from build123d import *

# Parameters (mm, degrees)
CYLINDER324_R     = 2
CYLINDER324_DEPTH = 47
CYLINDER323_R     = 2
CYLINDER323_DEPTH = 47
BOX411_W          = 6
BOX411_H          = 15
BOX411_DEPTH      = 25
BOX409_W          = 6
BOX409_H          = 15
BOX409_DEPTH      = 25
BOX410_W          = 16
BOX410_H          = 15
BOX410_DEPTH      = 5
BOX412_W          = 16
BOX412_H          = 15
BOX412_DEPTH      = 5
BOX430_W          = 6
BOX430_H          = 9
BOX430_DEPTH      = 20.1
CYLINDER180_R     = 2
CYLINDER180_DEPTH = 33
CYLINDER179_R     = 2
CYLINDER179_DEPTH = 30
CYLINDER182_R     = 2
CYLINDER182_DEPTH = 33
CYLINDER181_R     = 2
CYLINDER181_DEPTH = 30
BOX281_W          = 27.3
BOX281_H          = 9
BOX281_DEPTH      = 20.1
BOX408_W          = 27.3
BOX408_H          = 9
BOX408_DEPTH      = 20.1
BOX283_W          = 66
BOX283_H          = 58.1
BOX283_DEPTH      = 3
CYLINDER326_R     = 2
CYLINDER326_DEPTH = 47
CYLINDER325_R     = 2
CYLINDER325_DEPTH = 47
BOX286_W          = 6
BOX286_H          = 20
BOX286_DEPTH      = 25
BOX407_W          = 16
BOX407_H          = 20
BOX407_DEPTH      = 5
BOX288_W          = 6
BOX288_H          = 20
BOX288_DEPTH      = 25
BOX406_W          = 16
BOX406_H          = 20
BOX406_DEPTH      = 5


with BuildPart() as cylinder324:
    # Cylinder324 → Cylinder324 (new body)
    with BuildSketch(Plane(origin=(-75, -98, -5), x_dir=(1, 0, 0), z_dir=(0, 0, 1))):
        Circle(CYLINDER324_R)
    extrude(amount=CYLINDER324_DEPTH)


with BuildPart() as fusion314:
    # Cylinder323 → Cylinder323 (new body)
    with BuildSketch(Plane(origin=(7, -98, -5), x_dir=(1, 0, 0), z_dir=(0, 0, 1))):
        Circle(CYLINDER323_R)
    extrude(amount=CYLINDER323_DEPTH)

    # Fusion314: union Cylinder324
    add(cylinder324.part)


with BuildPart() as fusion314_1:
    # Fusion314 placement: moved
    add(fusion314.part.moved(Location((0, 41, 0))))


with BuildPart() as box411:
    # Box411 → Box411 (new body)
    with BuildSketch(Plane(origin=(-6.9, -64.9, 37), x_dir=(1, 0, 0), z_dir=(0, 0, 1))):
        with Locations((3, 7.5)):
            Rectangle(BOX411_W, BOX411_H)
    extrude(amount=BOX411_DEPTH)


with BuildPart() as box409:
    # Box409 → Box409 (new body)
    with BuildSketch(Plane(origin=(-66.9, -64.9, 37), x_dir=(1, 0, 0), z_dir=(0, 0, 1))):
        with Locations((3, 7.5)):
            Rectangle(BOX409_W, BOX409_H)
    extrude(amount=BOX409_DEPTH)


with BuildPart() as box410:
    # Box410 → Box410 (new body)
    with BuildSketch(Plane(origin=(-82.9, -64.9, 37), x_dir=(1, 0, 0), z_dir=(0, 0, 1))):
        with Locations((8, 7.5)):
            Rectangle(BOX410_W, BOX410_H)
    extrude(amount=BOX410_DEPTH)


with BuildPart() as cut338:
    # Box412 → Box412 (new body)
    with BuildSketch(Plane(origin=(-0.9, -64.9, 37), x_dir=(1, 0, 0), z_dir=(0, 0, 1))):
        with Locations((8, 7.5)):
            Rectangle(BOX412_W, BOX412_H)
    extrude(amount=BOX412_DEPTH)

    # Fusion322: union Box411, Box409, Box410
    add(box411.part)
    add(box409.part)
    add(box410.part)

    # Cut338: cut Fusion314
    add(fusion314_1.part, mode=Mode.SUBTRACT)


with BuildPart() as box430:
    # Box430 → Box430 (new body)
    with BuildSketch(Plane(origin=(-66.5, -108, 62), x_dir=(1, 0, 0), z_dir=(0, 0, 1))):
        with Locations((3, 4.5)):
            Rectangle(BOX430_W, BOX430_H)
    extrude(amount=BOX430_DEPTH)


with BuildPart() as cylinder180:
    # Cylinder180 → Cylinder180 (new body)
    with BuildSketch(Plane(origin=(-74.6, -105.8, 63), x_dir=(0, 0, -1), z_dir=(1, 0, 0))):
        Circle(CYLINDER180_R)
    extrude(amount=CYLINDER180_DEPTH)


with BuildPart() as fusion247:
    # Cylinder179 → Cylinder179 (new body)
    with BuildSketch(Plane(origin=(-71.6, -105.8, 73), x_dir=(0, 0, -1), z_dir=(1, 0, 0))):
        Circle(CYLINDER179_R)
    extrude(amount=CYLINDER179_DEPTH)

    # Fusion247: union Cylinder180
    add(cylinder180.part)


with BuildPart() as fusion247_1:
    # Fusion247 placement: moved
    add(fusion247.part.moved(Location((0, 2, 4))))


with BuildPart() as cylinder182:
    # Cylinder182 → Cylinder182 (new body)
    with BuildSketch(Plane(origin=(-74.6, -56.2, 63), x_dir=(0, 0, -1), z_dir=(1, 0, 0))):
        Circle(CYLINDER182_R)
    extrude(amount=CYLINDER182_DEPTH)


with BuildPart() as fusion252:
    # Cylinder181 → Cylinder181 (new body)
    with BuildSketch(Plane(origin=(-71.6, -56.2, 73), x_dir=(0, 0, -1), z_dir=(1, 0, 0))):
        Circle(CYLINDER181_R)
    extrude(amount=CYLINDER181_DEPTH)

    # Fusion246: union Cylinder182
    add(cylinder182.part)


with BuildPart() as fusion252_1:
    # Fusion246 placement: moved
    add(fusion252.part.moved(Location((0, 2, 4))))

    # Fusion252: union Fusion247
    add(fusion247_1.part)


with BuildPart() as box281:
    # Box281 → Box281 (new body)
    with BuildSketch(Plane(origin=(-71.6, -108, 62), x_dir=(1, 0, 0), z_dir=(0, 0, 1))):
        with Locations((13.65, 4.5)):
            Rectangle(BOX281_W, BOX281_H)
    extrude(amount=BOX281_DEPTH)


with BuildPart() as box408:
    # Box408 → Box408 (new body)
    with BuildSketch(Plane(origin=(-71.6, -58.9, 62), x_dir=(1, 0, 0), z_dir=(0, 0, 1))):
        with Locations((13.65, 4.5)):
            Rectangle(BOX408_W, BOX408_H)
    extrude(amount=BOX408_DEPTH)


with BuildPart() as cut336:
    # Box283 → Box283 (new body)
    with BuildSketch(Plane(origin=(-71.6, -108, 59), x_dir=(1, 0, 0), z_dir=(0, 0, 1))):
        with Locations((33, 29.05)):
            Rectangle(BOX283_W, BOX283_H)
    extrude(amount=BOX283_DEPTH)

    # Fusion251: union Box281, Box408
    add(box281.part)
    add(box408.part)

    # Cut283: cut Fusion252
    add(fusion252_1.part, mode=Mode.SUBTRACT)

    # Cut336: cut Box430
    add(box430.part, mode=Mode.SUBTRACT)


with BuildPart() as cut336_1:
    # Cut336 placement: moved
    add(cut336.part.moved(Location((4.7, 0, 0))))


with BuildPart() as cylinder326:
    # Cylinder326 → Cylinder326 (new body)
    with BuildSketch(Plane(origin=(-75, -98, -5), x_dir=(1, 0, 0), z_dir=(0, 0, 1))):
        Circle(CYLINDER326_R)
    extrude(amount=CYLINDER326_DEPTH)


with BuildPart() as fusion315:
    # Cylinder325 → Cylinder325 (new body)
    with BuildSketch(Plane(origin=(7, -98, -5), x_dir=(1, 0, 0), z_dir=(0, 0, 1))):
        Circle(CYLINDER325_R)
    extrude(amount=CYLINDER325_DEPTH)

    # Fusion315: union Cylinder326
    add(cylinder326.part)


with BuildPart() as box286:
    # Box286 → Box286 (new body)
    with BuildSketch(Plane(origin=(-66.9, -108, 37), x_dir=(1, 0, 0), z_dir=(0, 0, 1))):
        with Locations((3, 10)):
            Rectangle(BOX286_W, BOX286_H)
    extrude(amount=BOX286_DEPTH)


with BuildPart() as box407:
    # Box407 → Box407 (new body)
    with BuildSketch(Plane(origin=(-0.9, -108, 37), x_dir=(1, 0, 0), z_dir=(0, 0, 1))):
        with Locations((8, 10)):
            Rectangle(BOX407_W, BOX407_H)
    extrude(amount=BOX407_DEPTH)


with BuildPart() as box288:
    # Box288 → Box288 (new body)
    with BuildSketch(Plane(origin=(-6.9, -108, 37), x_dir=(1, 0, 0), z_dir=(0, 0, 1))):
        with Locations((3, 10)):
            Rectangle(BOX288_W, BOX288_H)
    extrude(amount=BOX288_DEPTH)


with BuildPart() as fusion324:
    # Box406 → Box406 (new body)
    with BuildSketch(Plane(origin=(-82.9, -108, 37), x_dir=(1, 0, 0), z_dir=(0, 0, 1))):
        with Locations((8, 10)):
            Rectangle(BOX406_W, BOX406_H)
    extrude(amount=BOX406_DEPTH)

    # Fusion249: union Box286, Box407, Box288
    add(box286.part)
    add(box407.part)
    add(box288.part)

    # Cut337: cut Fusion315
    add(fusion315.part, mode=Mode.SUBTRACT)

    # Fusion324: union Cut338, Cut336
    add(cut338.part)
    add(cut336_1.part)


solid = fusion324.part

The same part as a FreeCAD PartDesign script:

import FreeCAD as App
import Part
import Sketcher

V = App.Vector

doc = App.newDocument("Part")
body = doc.addObject("PartDesign::Body", "Body")

# Sketch on XY plane
sketch1 = body.newObject("Sketcher::SketchObject", "Sketch")
sketch1.AttachmentSupport = (doc.getObject("XY_Plane"), [""])
sketch1.MapMode = "FlatFace"
sketch1.AttachmentOffset = App.Placement(V(0, 0, -5), App.Rotation())
sketch1.addGeometry(Part.Circle(V(-75, -98, 0), V(0, 0, 1), 2), False)
sketch1.addConstraint([
    Sketcher.Constraint("Diameter", 0, 4.0),
    Sketcher.Constraint("DistanceX", 0, 3, -1, 1, 75.0),
    Sketcher.Constraint("DistanceY", 0, 3, -1, 1, 98.0),
])
pad1 = body.newObject("PartDesign::Pad", "Pad")
pad1.Profile = sketch1
pad1.Length = 47
body2 = doc.addObject("PartDesign::Body", "Body001")
body2.AllowCompound = True

# Sketch on XY plane
sketch2 = body2.newObject("Sketcher::SketchObject", "Sketch001")
sketch2.AttachmentSupport = (doc.getObject("XY_Plane001"), [""])
sketch2.MapMode = "FlatFace"
sketch2.AttachmentOffset = App.Placement(V(0, 0, -5), App.Rotation())
sketch2.addGeometry(Part.Circle(V(7, -98, 0), V(0, 0, 1), 2), False)
sketch2.addConstraint([
    Sketcher.Constraint("Diameter", 0, 4.0),
    Sketcher.Constraint("DistanceX", -1, 1, 0, 3, 7.0),
    Sketcher.Constraint("DistanceY", 0, 3, -1, 1, 98.0),
])
pad2 = body2.newObject("PartDesign::Pad", "Pad001")
pad2.Profile = sketch2
pad2.Length = 47
doc.recompute()

boolean = body2.newObject("PartDesign::Boolean", "Boolean")
boolean.Type = "Fuse"
boolean.addObjects([body])
body3 = doc.addObject("PartDesign::Body", "Body002")
body3.AllowCompound = True
doc.recompute()

body2.Placement = App.Placement(V(0, 41, 0), App.Rotation(V(0, 0, 1), 0))
boolean2 = body3.newObject("PartDesign::Boolean", "Boolean001")
boolean2.Type = "Fuse"
boolean2.addObjects([body2])
body4 = doc.addObject("PartDesign::Body", "Body003")

# Sketch on XY plane
sketch3 = body4.newObject("Sketcher::SketchObject", "Sketch002")
sketch3.AttachmentSupport = (doc.getObject("XY_Plane003"), [""])
sketch3.MapMode = "FlatFace"
sketch3.AttachmentOffset = App.Placement(V(0, 0, 37), App.Rotation())
sketch3.addGeometry([
    Part.LineSegment(V(-7, -50, 0), V(-7, -65, 0)),
    Part.LineSegment(V(-7, -65, 0), V(-1, -65, 0)),
    Part.LineSegment(V(-1, -65, 0), V(-1, -50, 0)),
    Part.LineSegment(V(-1, -50, 0), V(-7, -50, 0)),
], False)
sketch3.addConstraint([
    Sketcher.Constraint("Coincident", 0, 2, 1, 1),
    Sketcher.Constraint("Coincident", 1, 2, 2, 1),
    Sketcher.Constraint("Coincident", 2, 2, 3, 1),
    Sketcher.Constraint("Coincident", 3, 2, 0, 1),
    Sketcher.Constraint("Vertical", 0),
    Sketcher.Constraint("Horizontal", 1),
    Sketcher.Constraint("Vertical", 2),
    Sketcher.Constraint("Horizontal", 3),
    Sketcher.Constraint("DistanceX", 1, 1, 1, 2, 6.0),
    Sketcher.Constraint("DistanceY", 0, 2, 0, 1, 15.0),
    Sketcher.Constraint("DistanceX", 0, 2, -1, 1, 6.9),
    Sketcher.Constraint("DistanceY", 0, 2, -1, 1, 64.9),
])
pad3 = body4.newObject("PartDesign::Pad", "Pad002")
pad3.Profile = sketch3
pad3.Length = 25
body5 = doc.addObject("PartDesign::Body", "Body004")

# Sketch on XY plane
sketch4 = body5.newObject("Sketcher::SketchObject", "Sketch003")
sketch4.AttachmentSupport = (doc.getObject("XY_Plane004"), [""])
sketch4.MapMode = "FlatFace"
sketch4.AttachmentOffset = App.Placement(V(0, 0, 37), App.Rotation())
sketch4.addGeometry([
    Part.LineSegment(V(-67, -50, 0), V(-67, -65, 0)),
    Part.LineSegment(V(-67, -65, 0), V(-61, -65, 0)),
    Part.LineSegment(V(-61, -65, 0), V(-61, -50, 0)),
    Part.LineSegment(V(-61, -50, 0), V(-67, -50, 0)),
], False)
sketch4.addConstraint([
    Sketcher.Constraint("Coincident", 0, 2, 1, 1),
    Sketcher.Constraint("Coincident", 1, 2, 2, 1),
    Sketcher.Constraint("Coincident", 2, 2, 3, 1),
    Sketcher.Constraint("Coincident", 3, 2, 0, 1),
    Sketcher.Constraint("Vertical", 0),
    Sketcher.Constraint("Horizontal", 1),
    Sketcher.Constraint("Vertical", 2),
    Sketcher.Constraint("Horizontal", 3),
    Sketcher.Constraint("DistanceX", 1, 1, 1, 2, 6.0),
    Sketcher.Constraint("DistanceY", 0, 2, 0, 1, 15.0),
    Sketcher.Constraint("DistanceX", 0, 2, -1, 1, 66.9),
    Sketcher.Constraint("DistanceY", 0, 2, -1, 1, 64.9),
])
pad4 = body5.newObject("PartDesign::Pad", "Pad003")
pad4.Profile = sketch4
pad4.Length = 25
body6 = doc.addObject("PartDesign::Body", "Body005")

# Sketch on XY plane
sketch5 = body6.newObject("Sketcher::SketchObject", "Sketch004")
sketch5.AttachmentSupport = (doc.getObject("XY_Plane005"), [""])
sketch5.MapMode = "FlatFace"
sketch5.AttachmentOffset = App.Placement(V(0, 0, 37), App.Rotation())
sketch5.addGeometry([
    Part.LineSegment(V(-83, -50, 0), V(-83, -65, 0)),
    Part.LineSegment(V(-83, -65, 0), V(-67, -65, 0)),
    Part.LineSegment(V(-67, -65, 0), V(-67, -50, 0)),
    Part.LineSegment(V(-67, -50, 0), V(-83, -50, 0)),
], False)
sketch5.addConstraint([
    Sketcher.Constraint("Coincident", 0, 2, 1, 1),
    Sketcher.Constraint("Coincident", 1, 2, 2, 1),
    Sketcher.Constraint("Coincident", 2, 2, 3, 1),
    Sketcher.Constraint("Coincident", 3, 2, 0, 1),
    Sketcher.Constraint("Vertical", 0),
    Sketcher.Constraint("Horizontal", 1),
    Sketcher.Constraint("Vertical", 2),
    Sketcher.Constraint("Horizontal", 3),
    Sketcher.Constraint("DistanceX", 1, 1, 1, 2, 16.0),
    Sketcher.Constraint("DistanceY", 0, 2, 0, 1, 15.0),
    Sketcher.Constraint("DistanceX", 0, 2, -1, 1, 82.9),
    Sketcher.Constraint("DistanceY", 0, 2, -1, 1, 64.9),
])
pad5 = body6.newObject("PartDesign::Pad", "Pad004")
pad5.Profile = sketch5
pad5.Length = 5
body7 = doc.addObject("PartDesign::Body", "Body006")
body7.AllowCompound = True

# Sketch on XY plane
sketch6 = body7.newObject("Sketcher::SketchObject", "Sketch005")
sketch6.AttachmentSupport = (doc.getObject("XY_Plane006"), [""])
sketch6.MapMode = "FlatFace"
sketch6.AttachmentOffset = App.Placement(V(0, 0, 37), App.Rotation())
sketch6.addGeometry([
    Part.LineSegment(V(-1, -50, 0), V(-1, -65, 0)),
    Part.LineSegment(V(-1, -65, 0), V(15, -65, 0)),
    Part.LineSegment(V(15, -65, 0), V(15, -50, 0)),
    Part.LineSegment(V(15, -50, 0), V(-1, -50, 0)),
], False)
sketch6.addConstraint([
    Sketcher.Constraint("Coincident", 0, 2, 1, 1),
    Sketcher.Constraint("Coincident", 1, 2, 2, 1),
    Sketcher.Constraint("Coincident", 2, 2, 3, 1),
    Sketcher.Constraint("Coincident", 3, 2, 0, 1),
    Sketcher.Constraint("Vertical", 0),
    Sketcher.Constraint("Horizontal", 1),
    Sketcher.Constraint("Vertical", 2),
    Sketcher.Constraint("Horizontal", 3),
    Sketcher.Constraint("DistanceX", 1, 1, 1, 2, 16.0),
    Sketcher.Constraint("DistanceY", 0, 2, 0, 1, 15.0),
    Sketcher.Constraint("DistanceX", 0, 2, -1, 1, 0.9),
    Sketcher.Constraint("DistanceY", 0, 2, -1, 1, 64.9),
])
pad6 = body7.newObject("PartDesign::Pad", "Pad005")
pad6.Profile = sketch6
pad6.Length = 5
doc.recompute()

boolean3 = body7.newObject("PartDesign::Boolean", "Boolean002")
boolean3.Type = "Fuse"
boolean3.addObjects([body4])
doc.recompute()

boolean4 = body7.newObject("PartDesign::Boolean", "Boolean003")
boolean4.Type = "Fuse"
boolean4.addObjects([body5])
doc.recompute()

boolean5 = body7.newObject("PartDesign::Boolean", "Boolean004")
boolean5.Type = "Fuse"
boolean5.addObjects([body6])
doc.recompute()

boolean6 = body7.newObject("PartDesign::Boolean", "Boolean005")
boolean6.Type = "Cut"
boolean6.addObjects([body3])
body8 = doc.addObject("PartDesign::Body", "Body007")

# Sketch on XY plane
sketch7 = body8.newObject("Sketcher::SketchObject", "Sketch006")
sketch7.AttachmentSupport = (doc.getObject("XY_Plane007"), [""])
sketch7.MapMode = "FlatFace"
sketch7.AttachmentOffset = App.Placement(V(0, 0, 62), App.Rotation())
sketch7.addGeometry([
    Part.LineSegment(V(-66, -99, 0), V(-66, -108, 0)),
    Part.LineSegment(V(-66, -108, 0), V(-60, -108, 0)),
    Part.LineSegment(V(-60, -108, 0), V(-60, -99, 0)),
    Part.LineSegment(V(-60, -99, 0), V(-66, -99, 0)),
], False)
sketch7.addConstraint([
    Sketcher.Constraint("Coincident", 0, 2, 1, 1),
    Sketcher.Constraint("Coincident", 1, 2, 2, 1),
    Sketcher.Constraint("Coincident", 2, 2, 3, 1),
    Sketcher.Constraint("Coincident", 3, 2, 0, 1),
    Sketcher.Constraint("Vertical", 0),
    Sketcher.Constraint("Horizontal", 1),
    Sketcher.Constraint("Vertical", 2),
    Sketcher.Constraint("Horizontal", 3),
    Sketcher.Constraint("DistanceX", 1, 1, 1, 2, 6.0),
    Sketcher.Constraint("DistanceY", 0, 2, 0, 1, 9.0),
    Sketcher.Constraint("DistanceY", 0, 2, -1, 1, 108.0),
    Sketcher.Constraint("DistanceX", 0, 2, -1, 1, 66.5),
])
pad7 = body8.newObject("PartDesign::Pad", "Pad006")
pad7.Profile = sketch7
pad7.Length = 20.1
body9 = doc.addObject("PartDesign::Body", "Body008")

# Sketch on YZ plane
sketch8 = body9.newObject("Sketcher::SketchObject", "Sketch007")
sketch8.AttachmentSupport = (doc.getObject("YZ_Plane008"), [""])
sketch8.MapMode = "FlatFace"
sketch8.AttachmentOffset = App.Placement(V(0, 0, -74.6), App.Rotation())
sketch8.addGeometry(Part.Circle(V(-105.8, 63, 0), V(0, 0, 1), 2), False)
sketch8.addConstraint([
    Sketcher.Constraint("Diameter", 0, 4.0),
    Sketcher.Constraint("DistanceY", -1, 1, 0, 3, 63.0),
    Sketcher.Constraint("DistanceX", 0, 3, -1, 1, 105.8),
])
pad8 = body9.newObject("PartDesign::Pad", "Pad007")
pad8.Profile = sketch8
pad8.Length = 33
body10 = doc.addObject("PartDesign::Body", "Body009")
body10.AllowCompound = True

# Sketch on YZ plane
sketch9 = body10.newObject("Sketcher::SketchObject", "Sketch008")
sketch9.AttachmentSupport = (doc.getObject("YZ_Plane009"), [""])
sketch9.MapMode = "FlatFace"
sketch9.AttachmentOffset = App.Placement(V(0, 0, -71.6), App.Rotation())
sketch9.addGeometry(Part.Circle(V(-105.8, 73, 0), V(0, 0, 1), 2), False)
sketch9.addConstraint([
    Sketcher.Constraint("Diameter", 0, 4.0),
    Sketcher.Constraint("DistanceY", -1, 1, 0, 3, 73.0),
    Sketcher.Constraint("DistanceX", 0, 3, -1, 1, 105.8),
])
pad9 = body10.newObject("PartDesign::Pad", "Pad008")
pad9.Profile = sketch9
pad9.Length = 30
doc.recompute()

boolean7 = body10.newObject("PartDesign::Boolean", "Boolean006")
boolean7.Type = "Fuse"
boolean7.addObjects([body9])
body11 = doc.addObject("PartDesign::Body", "Body010")
body11.AllowCompound = True
doc.recompute()

body10.Placement = App.Placement(V(0, 2, 4), App.Rotation(V(0, 0, 1), 0))
boolean8 = body11.newObject("PartDesign::Boolean", "Boolean007")
boolean8.Type = "Fuse"
boolean8.addObjects([body10])
body12 = doc.addObject("PartDesign::Body", "Body011")

# Sketch on YZ plane
sketch10 = body12.newObject("Sketcher::SketchObject", "Sketch009")
sketch10.AttachmentSupport = (doc.getObject("YZ_Plane011"), [""])
sketch10.MapMode = "FlatFace"
sketch10.AttachmentOffset = App.Placement(V(0, 0, -74.6), App.Rotation())
sketch10.addGeometry(Part.Circle(V(-56.2, 63, 0), V(0, 0, 1), 2), False)
sketch10.addConstraint([
    Sketcher.Constraint("Diameter", 0, 4.0),
    Sketcher.Constraint("DistanceY", -1, 1, 0, 3, 63.0),
    Sketcher.Constraint("DistanceX", 0, 3, -1, 1, 56.2),
])
pad10 = body12.newObject("PartDesign::Pad", "Pad009")
pad10.Profile = sketch10
pad10.Length = 33
body13 = doc.addObject("PartDesign::Body", "Body012")
body13.AllowCompound = True

# Sketch on YZ plane
sketch11 = body13.newObject("Sketcher::SketchObject", "Sketch010")
sketch11.AttachmentSupport = (doc.getObject("YZ_Plane012"), [""])
sketch11.MapMode = "FlatFace"
sketch11.AttachmentOffset = App.Placement(V(0, 0, -71.6), App.Rotation())
sketch11.addGeometry(Part.Circle(V(-56.2, 73, 0), V(0, 0, 1), 2), False)
sketch11.addConstraint([
    Sketcher.Constraint("Diameter", 0, 4.0),
    Sketcher.Constraint("DistanceY", -1, 1, 0, 3, 73.0),
    Sketcher.Constraint("DistanceX", 0, 3, -1, 1, 56.2),
])
pad11 = body13.newObject("PartDesign::Pad", "Pad010")
pad11.Profile = sketch11
pad11.Length = 30
doc.recompute()

boolean9 = body13.newObject("PartDesign::Boolean", "Boolean008")
boolean9.Type = "Fuse"
boolean9.addObjects([body12])
body14 = doc.addObject("PartDesign::Body", "Body013")
body14.AllowCompound = True
doc.recompute()

body13.Placement = App.Placement(V(0, 2, 4), App.Rotation(V(0, 0, 1), 0))
boolean10 = body14.newObject("PartDesign::Boolean", "Boolean009")
boolean10.Type = "Fuse"
boolean10.addObjects([body13])
doc.recompute()

boolean11 = body14.newObject("PartDesign::Boolean", "Boolean010")
boolean11.Type = "Fuse"
boolean11.addObjects([body11])
body15 = doc.addObject("PartDesign::Body", "Body014")

# Sketch on XY plane
sketch12 = body15.newObject("Sketcher::SketchObject", "Sketch011")
sketch12.AttachmentSupport = (doc.getObject("XY_Plane014"), [""])
sketch12.MapMode = "FlatFace"
sketch12.AttachmentOffset = App.Placement(V(0, 0, 62), App.Rotation())
sketch12.addGeometry([
    Part.LineSegment(V(-72, -99, 0), V(-72, -108, 0)),
    Part.LineSegment(V(-72, -108, 0), V(-44, -108, 0)),
    Part.LineSegment(V(-44, -108, 0), V(-44, -99, 0)),
    Part.LineSegment(V(-44, -99, 0), V(-72, -99, 0)),
], False)
sketch12.addConstraint([
    Sketcher.Constraint("Coincident", 0, 2, 1, 1),
    Sketcher.Constraint("Coincident", 1, 2, 2, 1),
    Sketcher.Constraint("Coincident", 2, 2, 3, 1),
    Sketcher.Constraint("Coincident", 3, 2, 0, 1),
    Sketcher.Constraint("Vertical", 0),
    Sketcher.Constraint("Horizontal", 1),
    Sketcher.Constraint("Vertical", 2),
    Sketcher.Constraint("Horizontal", 3),
    Sketcher.Constraint("DistanceY", 0, 2, 0, 1, 9.0),
    Sketcher.Constraint("DistanceX", 1, 1, 1, 2, 27.3),
    Sketcher.Constraint("DistanceY", 0, 2, -1, 1, 108.0),
    Sketcher.Constraint("DistanceX", 0, 2, -1, 1, 71.6),
])
pad12 = body15.newObject("PartDesign::Pad", "Pad011")
pad12.Profile = sketch12
pad12.Length = 20.1
body16 = doc.addObject("PartDesign::Body", "Body015")

# Sketch on XY plane
sketch13 = body16.newObject("Sketcher::SketchObject", "Sketch012")
sketch13.AttachmentSupport = (doc.getObject("XY_Plane015"), [""])
sketch13.MapMode = "FlatFace"
sketch13.AttachmentOffset = App.Placement(V(0, 0, 62), App.Rotation())
sketch13.addGeometry([
    Part.LineSegment(V(-72, -50, 0), V(-72, -59, 0)),
    Part.LineSegment(V(-72, -59, 0), V(-44, -59, 0)),
    Part.LineSegment(V(-44, -59, 0), V(-44, -50, 0)),
    Part.LineSegment(V(-44, -50, 0), V(-72, -50, 0)),
], False)
sketch13.addConstraint([
    Sketcher.Constraint("Coincident", 0, 2, 1, 1),
    Sketcher.Constraint("Coincident", 1, 2, 2, 1),
    Sketcher.Constraint("Coincident", 2, 2, 3, 1),
    Sketcher.Constraint("Coincident", 3, 2, 0, 1),
    Sketcher.Constraint("Vertical", 0),
    Sketcher.Constraint("Horizontal", 1),
    Sketcher.Constraint("Vertical", 2),
    Sketcher.Constraint("Horizontal", 3),
    Sketcher.Constraint("DistanceY", 0, 2, 0, 1, 9.0),
    Sketcher.Constraint("DistanceX", 1, 1, 1, 2, 27.3),
    Sketcher.Constraint("DistanceX", 0, 2, -1, 1, 71.6),
    Sketcher.Constraint("DistanceY", 0, 2, -1, 1, 58.9),
])
pad13 = body16.newObject("PartDesign::Pad", "Pad012")
pad13.Profile = sketch13
pad13.Length = 20.1
body17 = doc.addObject("PartDesign::Body", "Body016")

# Sketch on XY plane
sketch14 = body17.newObject("Sketcher::SketchObject", "Sketch013")
sketch14.AttachmentSupport = (doc.getObject("XY_Plane016"), [""])
sketch14.MapMode = "FlatFace"
sketch14.AttachmentOffset = App.Placement(V(0, 0, 59), App.Rotation())
sketch14.addGeometry([
    Part.LineSegment(V(-72, -50, 0), V(-72, -108, 0)),
    Part.LineSegment(V(-72, -108, 0), V(-6, -108, 0)),
    Part.LineSegment(V(-6, -108, 0), V(-6, -50, 0)),
    Part.LineSegment(V(-6, -50, 0), V(-72, -50, 0)),
], False)
sketch14.addConstraint([
    Sketcher.Constraint("Coincident", 0, 2, 1, 1),
    Sketcher.Constraint("Coincident", 1, 2, 2, 1),
    Sketcher.Constraint("Coincident", 2, 2, 3, 1),
    Sketcher.Constraint("Coincident", 3, 2, 0, 1),
    Sketcher.Constraint("Vertical", 0),
    Sketcher.Constraint("Horizontal", 1),
    Sketcher.Constraint("Vertical", 2),
    Sketcher.Constraint("Horizontal", 3),
    Sketcher.Constraint("DistanceX", 1, 1, 1, 2, 66.0),
    Sketcher.Constraint("DistanceY", 0, 2, 0, 1, 58.1),
    Sketcher.Constraint("DistanceY", 0, 2, -1, 1, 108.0),
    Sketcher.Constraint("DistanceX", 0, 2, -1, 1, 71.6),
])
pad14 = body17.newObject("PartDesign::Pad", "Pad013")
pad14.Profile = sketch14
pad14.Length = 3
doc.recompute()

boolean12 = body17.newObject("PartDesign::Boolean", "Boolean011")
boolean12.Type = "Fuse"
boolean12.addObjects([body15])
doc.recompute()

boolean13 = body17.newObject("PartDesign::Boolean", "Boolean012")
boolean13.Type = "Fuse"
boolean13.addObjects([body16])
doc.recompute()

boolean14 = body17.newObject("PartDesign::Boolean", "Boolean013")
boolean14.Type = "Cut"
boolean14.addObjects([body14])
doc.recompute()

boolean15 = body17.newObject("PartDesign::Boolean", "Boolean014")
boolean15.Type = "Cut"
boolean15.addObjects([body8])
body18 = doc.addObject("PartDesign::Body", "Body017")
doc.recompute()

body17.Placement = App.Placement(V(4.7, 0, 0), App.Rotation(V(0, 0, 1), 0))
boolean16 = body18.newObject("PartDesign::Boolean", "Boolean015")
boolean16.Type = "Fuse"
boolean16.addObjects([body17])
body19 = doc.addObject("PartDesign::Body", "Body018")

# Sketch on XY plane
sketch15 = body19.newObject("Sketcher::SketchObject", "Sketch014")
sketch15.AttachmentSupport = (doc.getObject("XY_Plane018"), [""])
sketch15.MapMode = "FlatFace"
sketch15.AttachmentOffset = App.Placement(V(0, 0, -5), App.Rotation())
sketch15.addGeometry(Part.Circle(V(-75, -98, 0), V(0, 0, 1), 2), False)
sketch15.addConstraint([
    Sketcher.Constraint("Diameter", 0, 4.0),
    Sketcher.Constraint("DistanceX", 0, 3, -1, 1, 75.0),
    Sketcher.Constraint("DistanceY", 0, 3, -1, 1, 98.0),
])
pad15 = body19.newObject("PartDesign::Pad", "Pad014")
pad15.Profile = sketch15
pad15.Length = 47
body20 = doc.addObject("PartDesign::Body", "Body019")
body20.AllowCompound = True

# Sketch on XY plane
sketch16 = body20.newObject("Sketcher::SketchObject", "Sketch015")
sketch16.AttachmentSupport = (doc.getObject("XY_Plane019"), [""])
sketch16.MapMode = "FlatFace"
sketch16.AttachmentOffset = App.Placement(V(0, 0, -5), App.Rotation())
sketch16.addGeometry(Part.Circle(V(7, -98, 0), V(0, 0, 1), 2), False)
sketch16.addConstraint([
    Sketcher.Constraint("Diameter", 0, 4.0),
    Sketcher.Constraint("DistanceX", -1, 1, 0, 3, 7.0),
    Sketcher.Constraint("DistanceY", 0, 3, -1, 1, 98.0),
])
pad16 = body20.newObject("PartDesign::Pad", "Pad015")
pad16.Profile = sketch16
pad16.Length = 47
doc.recompute()

boolean17 = body20.newObject("PartDesign::Boolean", "Boolean016")
boolean17.Type = "Fuse"
boolean17.addObjects([body19])
body21 = doc.addObject("PartDesign::Body", "Body020")

# Sketch on XY plane
sketch17 = body21.newObject("Sketcher::SketchObject", "Sketch016")
sketch17.AttachmentSupport = (doc.getObject("XY_Plane020"), [""])
sketch17.MapMode = "FlatFace"
sketch17.AttachmentOffset = App.Placement(V(0, 0, 37), App.Rotation())
sketch17.addGeometry([
    Part.LineSegment(V(-67, -88, 0), V(-67, -108, 0)),
    Part.LineSegment(V(-67, -108, 0), V(-61, -108, 0)),
    Part.LineSegment(V(-61, -108, 0), V(-61, -88, 0)),
    Part.LineSegment(V(-61, -88, 0), V(-67, -88, 0)),
], False)
sketch17.addConstraint([
    Sketcher.Constraint("Coincident", 0, 2, 1, 1),
    Sketcher.Constraint("Coincident", 1, 2, 2, 1),
    Sketcher.Constraint("Coincident", 2, 2, 3, 1),
    Sketcher.Constraint("Coincident", 3, 2, 0, 1),
    Sketcher.Constraint("Vertical", 0),
    Sketcher.Constraint("Horizontal", 1),
    Sketcher.Constraint("Vertical", 2),
    Sketcher.Constraint("Horizontal", 3),
    Sketcher.Constraint("DistanceX", 1, 1, 1, 2, 6.0),
    Sketcher.Constraint("DistanceY", 0, 2, 0, 1, 20.0),
    Sketcher.Constraint("DistanceY", 0, 2, -1, 1, 108.0),
    Sketcher.Constraint("DistanceX", 0, 2, -1, 1, 66.9),
])
pad17 = body21.newObject("PartDesign::Pad", "Pad016")
pad17.Profile = sketch17
pad17.Length = 25
body22 = doc.addObject("PartDesign::Body", "Body021")

# Sketch on XY plane
sketch18 = body22.newObject("Sketcher::SketchObject", "Sketch017")
sketch18.AttachmentSupport = (doc.getObject("XY_Plane021"), [""])
sketch18.MapMode = "FlatFace"
sketch18.AttachmentOffset = App.Placement(V(0, 0, 37), App.Rotation())
sketch18.addGeometry([
    Part.LineSegment(V(-1, -88, 0), V(-1, -108, 0)),
    Part.LineSegment(V(-1, -108, 0), V(15, -108, 0)),
    Part.LineSegment(V(15, -108, 0), V(15, -88, 0)),
    Part.LineSegment(V(15, -88, 0), V(-1, -88, 0)),
], False)
sketch18.addConstraint([
    Sketcher.Constraint("Coincident", 0, 2, 1, 1),
    Sketcher.Constraint("Coincident", 1, 2, 2, 1),
    Sketcher.Constraint("Coincident", 2, 2, 3, 1),
    Sketcher.Constraint("Coincident", 3, 2, 0, 1),
    Sketcher.Constraint("Vertical", 0),
    Sketcher.Constraint("Horizontal", 1),
    Sketcher.Constraint("Vertical", 2),
    Sketcher.Constraint("Horizontal", 3),
    Sketcher.Constraint("DistanceX", 1, 1, 1, 2, 16.0),
    Sketcher.Constraint("DistanceY", 0, 2, 0, 1, 20.0),
    Sketcher.Constraint("DistanceY", 0, 2, -1, 1, 108.0),
    Sketcher.Constraint("DistanceX", 0, 2, -1, 1, 0.9),
])
pad18 = body22.newObject("PartDesign::Pad", "Pad017")
pad18.Profile = sketch18
pad18.Length = 5
body23 = doc.addObject("PartDesign::Body", "Body022")

# Sketch on XY plane
sketch19 = body23.newObject("Sketcher::SketchObject", "Sketch018")
sketch19.AttachmentSupport = (doc.getObject("XY_Plane022"), [""])
sketch19.MapMode = "FlatFace"
sketch19.AttachmentOffset = App.Placement(V(0, 0, 37), App.Rotation())
sketch19.addGeometry([
    Part.LineSegment(V(-7, -88, 0), V(-7, -108, 0)),
    Part.LineSegment(V(-7, -108, 0), V(-1, -108, 0)),
    Part.LineSegment(V(-1, -108, 0), V(-1, -88, 0)),
    Part.LineSegment(V(-1, -88, 0), V(-7, -88, 0)),
], False)
sketch19.addConstraint([
    Sketcher.Constraint("Coincident", 0, 2, 1, 1),
    Sketcher.Constraint("Coincident", 1, 2, 2, 1),
    Sketcher.Constraint("Coincident", 2, 2, 3, 1),
    Sketcher.Constraint("Coincident", 3, 2, 0, 1),
    Sketcher.Constraint("Vertical", 0),
    Sketcher.Constraint("Horizontal", 1),
    Sketcher.Constraint("Vertical", 2),
    Sketcher.Constraint("Horizontal", 3),
    Sketcher.Constraint("DistanceX", 1, 1, 1, 2, 6.0),
    Sketcher.Constraint("DistanceY", 0, 2, 0, 1, 20.0),
    Sketcher.Constraint("DistanceY", 0, 2, -1, 1, 108.0),
    Sketcher.Constraint("DistanceX", 0, 2, -1, 1, 6.9),
])
pad19 = body23.newObject("PartDesign::Pad", "Pad018")
pad19.Profile = sketch19
pad19.Length = 25
body24 = doc.addObject("PartDesign::Body", "Body023")
body24.AllowCompound = True

# Sketch on XY plane
sketch20 = body24.newObject("Sketcher::SketchObject", "Sketch019")
sketch20.AttachmentSupport = (doc.getObject("XY_Plane023"), [""])
sketch20.MapMode = "FlatFace"
sketch20.AttachmentOffset = App.Placement(V(0, 0, 37), App.Rotation())
sketch20.addGeometry([
    Part.LineSegment(V(-83, -88, 0), V(-83, -108, 0)),
    Part.LineSegment(V(-83, -108, 0), V(-67, -108, 0)),
    Part.LineSegment(V(-67, -108, 0), V(-67, -88, 0)),
    Part.LineSegment(V(-67, -88, 0), V(-83, -88, 0)),
], False)
sketch20.addConstraint([
    Sketcher.Constraint("Coincident", 0, 2, 1, 1),
    Sketcher.Constraint("Coincident", 1, 2, 2, 1),
    Sketcher.Constraint("Coincident", 2, 2, 3, 1),
    Sketcher.Constraint("Coincident", 3, 2, 0, 1),
    Sketcher.Constraint("Vertical", 0),
    Sketcher.Constraint("Horizontal", 1),
    Sketcher.Constraint("Vertical", 2),
    Sketcher.Constraint("Horizontal", 3),
    Sketcher.Constraint("DistanceX", 1, 1, 1, 2, 16.0),
    Sketcher.Constraint("DistanceY", 0, 2, 0, 1, 20.0),
    Sketcher.Constraint("DistanceY", 0, 2, -1, 1, 108.0),
    Sketcher.Constraint("DistanceX", 0, 2, -1, 1, 82.9),
])
pad20 = body24.newObject("PartDesign::Pad", "Pad019")
pad20.Profile = sketch20
pad20.Length = 5
doc.recompute()

boolean18 = body24.newObject("PartDesign::Boolean", "Boolean017")
boolean18.Type = "Fuse"
boolean18.addObjects([body21])
doc.recompute()

boolean19 = body24.newObject("PartDesign::Boolean", "Boolean018")
boolean19.Type = "Fuse"
boolean19.addObjects([body22])
doc.recompute()

boolean20 = body24.newObject("PartDesign::Boolean", "Boolean019")
boolean20.Type = "Fuse"
boolean20.addObjects([body23])
doc.recompute()

boolean21 = body24.newObject("PartDesign::Boolean", "Boolean020")
boolean21.Type = "Cut"
boolean21.addObjects([body20])
doc.recompute()

boolean22 = body24.newObject("PartDesign::Boolean", "Boolean021")
boolean22.Type = "Fuse"
boolean22.addObjects([body7])
doc.recompute()

boolean23 = body24.newObject("PartDesign::Boolean", "Boolean022")
boolean23.Type = "Fuse"
boolean23.addObjects([body18])

doc.recompute()
